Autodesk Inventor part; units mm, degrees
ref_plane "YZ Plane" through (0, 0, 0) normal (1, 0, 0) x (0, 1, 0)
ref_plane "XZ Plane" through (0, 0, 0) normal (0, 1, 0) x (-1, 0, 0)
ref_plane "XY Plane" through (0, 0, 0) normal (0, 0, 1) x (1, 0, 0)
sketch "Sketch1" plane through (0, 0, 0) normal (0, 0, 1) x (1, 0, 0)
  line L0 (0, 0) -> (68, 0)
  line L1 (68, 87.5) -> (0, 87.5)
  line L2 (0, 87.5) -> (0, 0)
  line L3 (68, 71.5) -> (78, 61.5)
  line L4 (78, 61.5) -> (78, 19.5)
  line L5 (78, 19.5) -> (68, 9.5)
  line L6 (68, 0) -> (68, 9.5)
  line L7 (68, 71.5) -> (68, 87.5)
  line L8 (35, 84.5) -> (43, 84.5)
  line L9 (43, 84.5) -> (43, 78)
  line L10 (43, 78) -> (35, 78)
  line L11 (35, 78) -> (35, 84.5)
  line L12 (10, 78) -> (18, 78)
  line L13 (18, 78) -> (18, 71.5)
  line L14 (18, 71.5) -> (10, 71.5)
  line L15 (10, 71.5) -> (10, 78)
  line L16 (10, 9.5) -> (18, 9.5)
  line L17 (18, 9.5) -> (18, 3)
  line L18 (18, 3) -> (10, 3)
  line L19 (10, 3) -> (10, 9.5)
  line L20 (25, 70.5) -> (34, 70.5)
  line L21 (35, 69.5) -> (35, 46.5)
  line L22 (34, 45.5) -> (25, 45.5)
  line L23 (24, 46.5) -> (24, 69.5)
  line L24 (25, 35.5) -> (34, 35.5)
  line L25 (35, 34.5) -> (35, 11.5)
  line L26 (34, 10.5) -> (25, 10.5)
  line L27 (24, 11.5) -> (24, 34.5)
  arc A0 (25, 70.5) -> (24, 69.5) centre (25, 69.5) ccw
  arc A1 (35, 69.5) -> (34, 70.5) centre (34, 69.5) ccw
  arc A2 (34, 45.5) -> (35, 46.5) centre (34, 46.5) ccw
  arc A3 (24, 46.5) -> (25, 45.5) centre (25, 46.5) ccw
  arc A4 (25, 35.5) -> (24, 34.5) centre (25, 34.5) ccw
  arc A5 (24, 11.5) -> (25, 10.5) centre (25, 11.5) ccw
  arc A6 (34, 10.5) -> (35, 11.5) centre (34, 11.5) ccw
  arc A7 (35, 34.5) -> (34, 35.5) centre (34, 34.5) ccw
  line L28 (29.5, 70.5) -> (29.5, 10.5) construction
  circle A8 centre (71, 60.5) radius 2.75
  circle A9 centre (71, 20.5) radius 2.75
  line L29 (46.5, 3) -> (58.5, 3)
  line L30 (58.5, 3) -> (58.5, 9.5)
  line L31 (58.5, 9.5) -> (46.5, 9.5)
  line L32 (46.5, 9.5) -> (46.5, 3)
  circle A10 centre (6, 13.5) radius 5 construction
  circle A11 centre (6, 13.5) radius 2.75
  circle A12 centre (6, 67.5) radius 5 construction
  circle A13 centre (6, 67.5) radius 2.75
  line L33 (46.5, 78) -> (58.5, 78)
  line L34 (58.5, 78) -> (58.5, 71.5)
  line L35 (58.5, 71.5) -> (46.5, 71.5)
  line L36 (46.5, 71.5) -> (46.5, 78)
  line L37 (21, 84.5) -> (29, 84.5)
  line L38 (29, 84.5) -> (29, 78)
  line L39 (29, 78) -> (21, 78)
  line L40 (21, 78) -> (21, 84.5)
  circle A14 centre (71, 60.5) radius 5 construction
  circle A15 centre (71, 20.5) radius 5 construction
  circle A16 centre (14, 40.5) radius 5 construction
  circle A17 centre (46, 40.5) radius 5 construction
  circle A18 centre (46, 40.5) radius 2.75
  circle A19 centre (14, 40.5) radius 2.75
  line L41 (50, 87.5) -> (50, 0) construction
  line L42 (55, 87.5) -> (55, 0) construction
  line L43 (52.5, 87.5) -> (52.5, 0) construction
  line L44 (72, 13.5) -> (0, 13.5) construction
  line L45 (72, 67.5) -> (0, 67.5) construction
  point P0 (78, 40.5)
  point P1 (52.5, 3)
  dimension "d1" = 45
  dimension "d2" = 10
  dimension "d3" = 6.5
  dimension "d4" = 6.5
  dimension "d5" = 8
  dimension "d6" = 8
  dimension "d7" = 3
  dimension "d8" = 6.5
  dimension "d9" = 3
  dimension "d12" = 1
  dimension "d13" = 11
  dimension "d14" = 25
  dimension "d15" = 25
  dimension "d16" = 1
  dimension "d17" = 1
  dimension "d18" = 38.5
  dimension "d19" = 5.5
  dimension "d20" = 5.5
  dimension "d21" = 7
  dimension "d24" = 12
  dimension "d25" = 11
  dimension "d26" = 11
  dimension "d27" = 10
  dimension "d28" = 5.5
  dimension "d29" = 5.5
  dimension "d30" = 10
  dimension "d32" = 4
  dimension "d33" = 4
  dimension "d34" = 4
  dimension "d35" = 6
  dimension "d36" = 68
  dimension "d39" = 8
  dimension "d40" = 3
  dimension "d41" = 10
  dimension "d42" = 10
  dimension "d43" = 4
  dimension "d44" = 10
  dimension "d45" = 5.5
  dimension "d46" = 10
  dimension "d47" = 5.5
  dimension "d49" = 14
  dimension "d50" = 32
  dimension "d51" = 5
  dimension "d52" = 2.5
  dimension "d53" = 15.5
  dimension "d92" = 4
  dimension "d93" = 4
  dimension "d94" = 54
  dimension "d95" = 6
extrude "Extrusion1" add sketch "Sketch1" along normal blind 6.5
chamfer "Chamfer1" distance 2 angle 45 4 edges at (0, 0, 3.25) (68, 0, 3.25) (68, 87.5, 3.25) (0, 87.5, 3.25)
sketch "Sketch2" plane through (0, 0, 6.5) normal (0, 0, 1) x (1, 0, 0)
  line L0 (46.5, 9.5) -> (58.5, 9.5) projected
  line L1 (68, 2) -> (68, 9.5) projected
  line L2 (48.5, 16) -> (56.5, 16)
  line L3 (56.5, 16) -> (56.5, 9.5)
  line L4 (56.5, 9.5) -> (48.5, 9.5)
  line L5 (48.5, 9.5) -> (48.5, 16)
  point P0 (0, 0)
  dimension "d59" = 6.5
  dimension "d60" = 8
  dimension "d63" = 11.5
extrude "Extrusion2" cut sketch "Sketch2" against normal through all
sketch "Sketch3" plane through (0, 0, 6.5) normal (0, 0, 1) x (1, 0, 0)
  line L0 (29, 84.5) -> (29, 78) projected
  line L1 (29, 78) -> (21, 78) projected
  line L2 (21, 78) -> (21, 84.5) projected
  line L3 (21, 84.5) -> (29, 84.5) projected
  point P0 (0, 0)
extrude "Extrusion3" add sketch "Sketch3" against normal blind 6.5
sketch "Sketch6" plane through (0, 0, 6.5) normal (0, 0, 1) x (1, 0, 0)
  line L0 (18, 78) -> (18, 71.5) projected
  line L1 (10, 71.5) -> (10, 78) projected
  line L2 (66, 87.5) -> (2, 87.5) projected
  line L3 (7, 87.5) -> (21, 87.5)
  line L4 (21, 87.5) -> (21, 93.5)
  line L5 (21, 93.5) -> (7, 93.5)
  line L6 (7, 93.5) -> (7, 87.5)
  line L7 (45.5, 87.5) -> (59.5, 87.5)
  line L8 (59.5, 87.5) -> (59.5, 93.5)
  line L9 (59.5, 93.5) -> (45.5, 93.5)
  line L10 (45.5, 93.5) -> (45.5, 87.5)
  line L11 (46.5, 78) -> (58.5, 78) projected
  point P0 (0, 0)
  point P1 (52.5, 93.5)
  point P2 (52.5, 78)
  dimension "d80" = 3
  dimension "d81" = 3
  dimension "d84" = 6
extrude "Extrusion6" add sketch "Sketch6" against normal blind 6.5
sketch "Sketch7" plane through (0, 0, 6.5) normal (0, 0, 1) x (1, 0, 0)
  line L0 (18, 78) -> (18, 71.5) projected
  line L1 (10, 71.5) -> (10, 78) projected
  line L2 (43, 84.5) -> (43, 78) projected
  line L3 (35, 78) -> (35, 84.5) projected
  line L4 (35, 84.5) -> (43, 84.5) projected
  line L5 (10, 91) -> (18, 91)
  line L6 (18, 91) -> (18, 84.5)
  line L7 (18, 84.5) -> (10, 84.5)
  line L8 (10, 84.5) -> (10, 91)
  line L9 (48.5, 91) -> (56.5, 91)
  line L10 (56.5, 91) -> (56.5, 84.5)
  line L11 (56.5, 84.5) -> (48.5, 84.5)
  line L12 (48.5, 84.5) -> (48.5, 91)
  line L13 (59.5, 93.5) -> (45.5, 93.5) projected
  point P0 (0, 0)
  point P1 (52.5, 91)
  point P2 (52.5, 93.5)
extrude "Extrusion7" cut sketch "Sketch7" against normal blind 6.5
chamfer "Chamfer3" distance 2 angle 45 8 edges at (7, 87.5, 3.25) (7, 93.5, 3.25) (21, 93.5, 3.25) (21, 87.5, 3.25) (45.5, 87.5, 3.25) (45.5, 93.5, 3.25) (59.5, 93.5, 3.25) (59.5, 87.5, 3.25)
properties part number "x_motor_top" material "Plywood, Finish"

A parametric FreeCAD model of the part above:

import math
import FreeCAD as App
import Part
import Sketcher


def edges_at(feature, points):
    """Names of the edges that pass closest to the given points."""
    edges = feature.Shape.Edges
    near = lambda p: min(range(len(edges)), key=lambda i: edges[i].distToShape(Part.Vertex(*p))[0])
    return sorted({f"Edge{near(p) + 1}" for p in points})


def add_polygon(sketch, points):
    """Adds a closed chain of lines whose ends are joined by coincident constraints."""
    first, n = sketch.GeometryCount, len(points)
    for a, b in zip(points, points[1:] + points[:1]):
        sketch.addGeometry(Part.LineSegment(App.Vector(*a, 0), App.Vector(*b, 0)), False)
    for i in range(n):
        sketch.addConstraint(Sketcher.Constraint("Coincident", first + i, 2, first + (i + 1) % n, 1))

doc = App.newDocument("Part")
body = doc.addObject("PartDesign::Body", "Body")

sketch1 = body.newObject("Sketcher::SketchObject", "Sketch")
sketch1.AttachmentSupport = (doc.getObject("XY_Plane"), [""])
sketch1.MapMode = "FlatFace"
add_polygon(sketch1, [(0, 87.5), (0, 0), (68, 0), (68, 9.5), (78, 19.5), (78, 61.5), (68, 71.5), (68, 87.5)])
add_polygon(sketch1, [(10, 3), (10, 9.5), (18, 9.5), (18, 3)])
sketch1.addGeometry(Part.Circle(App.Vector(6, 13.5, 0), App.Vector(0, 0, 1), 2.8), False)
sketch1.addGeometry(Part.Circle(App.Vector(14, 40.5, 0), App.Vector(0, 0, 1), 2.8), False)
sketch1.addGeometry(Part.ArcOfCircle(Part.Circle(App.Vector(25, 34.5, 0), App.Vector(0, 0, 1), 1), math.radians(90), math.radians(180)), False)
sketch1.addGeometry(Part.LineSegment(App.Vector(25, 35.5, 0), App.Vector(34, 35.5, 0)), False)
sketch1.addGeometry(Part.ArcOfCircle(Part.Circle(App.Vector(34, 34.5, 0), App.Vector(0, 0, 1), 1), math.radians(0), math.radians(90)), False)
sketch1.addGeometry(Part.LineSegment(App.Vector(35, 34.5, 0), App.Vector(35, 11.5, 0)), False)
sketch1.addGeometry(Part.ArcOfCircle(Part.Circle(App.Vector(34, 11.5, 0), App.Vector(0, 0, 1), 1), math.radians(-90), math.radians(0)), False)
sketch1.addGeometry(Part.LineSegment(App.Vector(34, 10.5, 0), App.Vector(25, 10.5, 0)), False)
sketch1.addGeometry(Part.ArcOfCircle(Part.Circle(App.Vector(25, 11.5, 0), App.Vector(0, 0, 1), 1), math.radians(180), math.radians(270)), False)
sketch1.addGeometry(Part.LineSegment(App.Vector(24, 11.5, 0), App.Vector(24, 34.5, 0)), False)
add_polygon(sketch1, [(58.5, 3), (46.5, 3), (46.5, 9.5), (58.5, 9.5)])
sketch1.addGeometry(Part.Circle(App.Vector(71, 20.5, 0), App.Vector(0, 0, 1), 2.8), False)
sketch1.addGeometry(Part.Circle(App.Vector(46, 40.5, 0), App.Vector(0, 0, 1), 2.8), False)
sketch1.addGeometry(Part.ArcOfCircle(Part.Circle(App.Vector(25, 69.5, 0), App.Vector(0, 0, 1), 1), math.radians(90), math.radians(180)), False)
sketch1.addGeometry(Part.LineSegment(App.Vector(25, 70.5, 0), App.Vector(34, 70.5, 0)), False)
sketch1.addGeometry(Part.ArcOfCircle(Part.Circle(App.Vector(34, 69.5, 0), App.Vector(0, 0, 1), 1), math.radians(0), math.radians(90)), False)
sketch1.addGeometry(Part.LineSegment(App.Vector(35, 69.5, 0), App.Vector(35, 46.5, 0)), False)
sketch1.addGeometry(Part.ArcOfCircle(Part.Circle(App.Vector(34, 46.5, 0), App.Vector(0, 0, 1), 1), math.radians(-90), math.radians(0)), False)
sketch1.addGeometry(Part.LineSegment(App.Vector(34, 45.5, 0), App.Vector(25, 45.5, 0)), False)
sketch1.addGeometry(Part.ArcOfCircle(Part.Circle(App.Vector(25, 46.5, 0), App.Vector(0, 0, 1), 1), math.radians(180), math.radians(270)), False)
sketch1.addGeometry(Part.LineSegment(App.Vector(24, 46.5, 0), App.Vector(24, 69.5, 0)), False)
sketch1.addGeometry(Part.Circle(App.Vector(6, 67.5, 0), App.Vector(0, 0, 1), 2.8), False)
add_polygon(sketch1, [(10, 71.5), (10, 78), (18, 78), (18, 71.5)])
add_polygon(sketch1, [(21, 78), (21, 84.5), (29, 84.5), (29, 78)])
sketch1.addGeometry(Part.Circle(App.Vector(71, 60.5, 0), App.Vector(0, 0, 1), 2.8), False)
add_polygon(sketch1, [(46.5, 71.5), (46.5, 78), (58.5, 78), (58.5, 71.5)])
add_polygon(sketch1, [(35, 78), (35, 84.5), (43, 84.5), (43, 78)])
sketch1.addConstraint(Sketcher.Constraint("Tangent", 14, 1, 15, 1))
sketch1.addConstraint(Sketcher.Constraint("Tangent", 15, 2, 16, 2))
sketch1.addConstraint(Sketcher.Constraint("Tangent", 16, 1, 17, 1))
sketch1.addConstraint(Sketcher.Constraint("Tangent", 17, 2, 18, 2))
sketch1.addConstraint(Sketcher.Constraint("Tangent", 18, 1, 19, 1))
sketch1.addConstraint(Sketcher.Constraint("Tangent", 19, 2, 20, 2))
sketch1.addConstraint(Sketcher.Constraint("Tangent", 20, 1, 21, 1))
sketch1.addConstraint(Sketcher.Constraint("Tangent", 21, 2, 14, 2))
sketch1.addConstraint(Sketcher.Constraint("Tangent", 28, 1, 29, 1))
sketch1.addConstraint(Sketcher.Constraint("Tangent", 29, 2, 30, 2))
sketch1.addConstraint(Sketcher.Constraint("Tangent", 30, 1, 31, 1))
sketch1.addConstraint(Sketcher.Constraint("Tangent", 31, 2, 32, 2))
sketch1.addConstraint(Sketcher.Constraint("Tangent", 32, 1, 33, 1))
sketch1.addConstraint(Sketcher.Constraint("Tangent", 33, 2, 34, 2))
sketch1.addConstraint(Sketcher.Constraint("Tangent", 34, 1, 35, 1))
sketch1.addConstraint(Sketcher.Constraint("Tangent", 35, 2, 28, 2))
sketch1.addConstraint(Sketcher.Constraint("Vertical", 0))
sketch1.addConstraint(Sketcher.Constraint("Horizontal", 1))
sketch1.addConstraint(Sketcher.Constraint("Vertical", 2))
sketch1.addConstraint(Sketcher.Constraint("Vertical", 4))
sketch1.addConstraint(Sketcher.Constraint("Vertical", 6))
sketch1.addConstraint(Sketcher.Constraint("Horizontal", 7))
sketch1.addConstraint(Sketcher.Constraint("Vertical", 8))
sketch1.addConstraint(Sketcher.Constraint("Horizontal", 9))
sketch1.addConstraint(Sketcher.Constraint("Vertical", 10))
sketch1.addConstraint(Sketcher.Constraint("Horizontal", 11))
sketch1.addConstraint(Sketcher.Constraint("Horizontal", 15))
sketch1.addConstraint(Sketcher.Constraint("Vertical", 17))
sketch1.addConstraint(Sketcher.Constraint("Horizontal", 19))
sketch1.addConstraint(Sketcher.Constraint("Vertical", 21))
sketch1.addConstraint(Sketcher.Constraint("Horizontal", 22))
sketch1.addConstraint(Sketcher.Constraint("Vertical", 23))
sketch1.addConstraint(Sketcher.Constraint("Horizontal", 24))
sketch1.addConstraint(Sketcher.Constraint("Vertical", 25))
sketch1.addConstraint(Sketcher.Constraint("Horizontal", 29))
sketch1.addConstraint(Sketcher.Constraint("Vertical", 31))
sketch1.addConstraint(Sketcher.Constraint("Horizontal", 33))
sketch1.addConstraint(Sketcher.Constraint("Vertical", 35))
sketch1.addConstraint(Sketcher.Constraint("Vertical", 37))
sketch1.addConstraint(Sketcher.Constraint("Horizontal", 38))
sketch1.addConstraint(Sketcher.Constraint("Vertical", 39))
sketch1.addConstraint(Sketcher.Constraint("Horizontal", 40))
sketch1.addConstraint(Sketcher.Constraint("Vertical", 41))
sketch1.addConstraint(Sketcher.Constraint("Horizontal", 42))
sketch1.addConstraint(Sketcher.Constraint("Vertical", 43))
sketch1.addConstraint(Sketcher.Constraint("Horizontal", 44))
sketch1.addConstraint(Sketcher.Constraint("Vertical", 46))
sketch1.addConstraint(Sketcher.Constraint("Horizontal", 47))
sketch1.addConstraint(Sketcher.Constraint("Vertical", 48))
sketch1.addConstraint(Sketcher.Constraint("Horizontal", 49))
sketch1.addConstraint(Sketcher.Constraint("Vertical", 50))
sketch1.addConstraint(Sketcher.Constraint("Horizontal", 51))
sketch1.addConstraint(Sketcher.Constraint("Vertical", 52))
sketch1.addConstraint(Sketcher.Constraint("Horizontal", 53))
sketch1.addConstraint(Sketcher.Constraint("Coincident", 0, 2, -1, 1))
sketch1.addConstraint(Sketcher.Constraint("Equal", 12, 13))
sketch1.addConstraint(Sketcher.Constraint("Equal", 14, 16))
sketch1.addConstraint(Sketcher.Constraint("Equal", 16, 18))
sketch1.addConstraint(Sketcher.Constraint("Equal", 18, 20))
sketch1.addConstraint(Sketcher.Constraint("Equal", 13, 26))
sketch1.addConstraint(Sketcher.Constraint("Equal", 26, 27))
sketch1.addConstraint(Sketcher.Constraint("Equal", 20, 28))
sketch1.addConstraint(Sketcher.Constraint("Equal", 28, 30))
sketch1.addConstraint(Sketcher.Constraint("Equal", 30, 32))
sketch1.addConstraint(Sketcher.Constraint("Equal", 32, 34))
sketch1.addConstraint(Sketcher.Constraint("Equal", 27, 36))
sketch1.addConstraint(Sketcher.Constraint("Equal", 36, 45))
sketch1.addConstraint(Sketcher.Constraint("Perpendicular", 3, 5))
sketch1.addConstraint(Sketcher.Constraint("Horizontal", 13, 3, 27, 3))
sketch1.addConstraint(Sketcher.Constraint("Horizontal", 2, 2, 8, 2))
sketch1.addConstraint(Sketcher.Constraint("Horizontal", 11, 2, 22, 2))
sketch1.addConstraint(Sketcher.Constraint("Horizontal", 9, 2, 23, 2))
sketch1.addConstraint(Sketcher.Constraint("Horizontal", 5, 2, 39, 2))
sketch1.addConstraint(Sketcher.Constraint("Horizontal", 38, 2, 43, 2))
sketch1.addConstraint(Sketcher.Constraint("Horizontal", 44, 2, 46, 2))
sketch1.addConstraint(Sketcher.Constraint("Horizontal", 40, 2, 48, 2))
sketch1.addConstraint(Sketcher.Constraint("Horizontal", 42, 2, 50, 2))
sketch1.addConstraint(Sketcher.Constraint("Horizontal", 47, 2, 52, 2))
sketch1.addConstraint(Sketcher.Constraint("Vertical", 20, 3, 28, 3))
sketch1.addConstraint(Sketcher.Constraint("Vertical", 18, 3, 30, 3))
sketch1.addConstraint(Sketcher.Constraint("Vertical", 12, 3, 36, 3))
sketch1.addConstraint(Sketcher.Constraint("Vertical", 26, 3, 45, 3))
sketch1.addConstraint(Sketcher.Constraint("Vertical", 2, 2, 5, 2))
sketch1.addConstraint(Sketcher.Constraint("Vertical", 11, 2, 37, 2))
sketch1.addConstraint(Sketcher.Constraint("Vertical", 10, 2, 38, 2))
sketch1.addConstraint(Sketcher.Constraint("Vertical", 23, 2, 46, 2))
sketch1.addConstraint(Sketcher.Constraint("Vertical", 25, 2, 47, 2))
sketch1.addConstraint(Sketcher.Constraint("Vertical", 31, 2, 50, 2))
sketch1.addConstraint(Sketcher.Constraint("Equal", 40, 42))
sketch1.addConstraint(Sketcher.Constraint("Equal", 44, 51))
sketch1.addConstraint(Sketcher.Constraint("Equal", 21, 31))
sketch1.addConstraint(Sketcher.Constraint("Equal", 25, 37))
sketch1.addConstraint(Sketcher.Constraint("Equal", 39, 41))
sketch1.addConstraint(Sketcher.Constraint("Equal", 3, 5))
sketch1.addConstraint(Sketcher.Constraint("Radius", 14, 1.0))
sketch1.addConstraint(Sketcher.Constraint("Diameter", 12, 5.5))
sketch1.addConstraint(Sketcher.Constraint("DistanceX", 1, 1, 1, 2, 68.0))
sketch1.addConstraint(Sketcher.Constraint("DistanceX", 9, 1, 9, 2, 8.0))
sketch1.addConstraint(Sketcher.Constraint("DistanceX", 22, 2, 22, 1, 12.0))
sketch1.addConstraint(Sketcher.Constraint("DistanceY", 8, 1, 8, 2, 6.5))
sketch1.addConstraint(Sketcher.Constraint("DistanceX", -1, 1, 12, 3, 6.0))
sketch1.addConstraint(Sketcher.Constraint("DistanceX", -1, 1, 13, 3, 14.0))
sketch1.addConstraint(Sketcher.Constraint("DistanceX", -1, 1, 14, 3, 25.0))
sketch1.addConstraint(Sketcher.Constraint("DistanceX", -1, 1, 8, 2, 10.0))
sketch1.addConstraint(Sketcher.Constraint("DistanceY", -1, 1, 10, 2, 3.0))
sketch1.addConstraint(Sketcher.Constraint("DistanceX", 15, 1, 15, 2, 9.0))
sketch1.addConstraint(Sketcher.Constraint("DistanceY", 4, 1, 4, 2, 42.0))
sketch1.addConstraint(Sketcher.Constraint("DistanceY", 6, 1, 6, 2, 16.0))
sketch1.addConstraint(Sketcher.Constraint("DistanceY", 17, 2, 17, 1, 23.0))
sketch1.addConstraint(Sketcher.Constraint("DistanceY", 0, 2, 0, 1, 87.5))
sketch1.addConstraint(Sketcher.Constraint("DistanceX", -1, 1, 26, 3, 71.0))
sketch1.addConstraint(Sketcher.Constraint("DistanceX", -1, 1, 27, 3, 46.0))
sketch1.addConstraint(Sketcher.Constraint("DistanceX", -1, 1, 41, 2, 21.0))
sketch1.addConstraint(Sketcher.Constraint("DistanceY", -1, 1, 12, 3, 13.5))
sketch1.addConstraint(Sketcher.Constraint("DistanceY", -1, 1, 13, 3, 40.5))
sketch1.addConstraint(Sketcher.Constraint("DistanceY", -1, 1, 14, 3, 34.5))
sketch1.addConstraint(Sketcher.Constraint("DistanceY", -1, 1, 26, 3, 20.5))
sketch1.addConstraint(Sketcher.Constraint("DistanceY", -1, 1, 28, 3, 69.5))
sketch1.addConstraint(Sketcher.Constraint("DistanceY", -1, 1, 36, 3, 67.5))
sketch1.addConstraint(Sketcher.Constraint("DistanceY", -1, 1, 45, 3, 60.5))
sketch1.addConstraint(Sketcher.Constraint("DistanceX", -1, 1, 22, 2, 46.5))
pad1 = body.newObject("PartDesign::Pad", "Pad")
pad1.Profile = sketch1
pad1.Length = 6.5
doc.recompute()

chamfer = body.newObject("PartDesign::Chamfer", "Chamfer")
chamfer.Base = (pad1, edges_at(pad1, [
    (0, 0, 3.25),
    (68, 0, 3.25),
    (68, 87.5, 3.25),
    (0, 87.5, 3.25),
]))
chamfer.Size = 2

sketch2 = body.newObject("Sketcher::SketchObject", "Sketch001")
sketch2.AttachmentSupport = (doc.getObject("XY_Plane"), [""])
sketch2.MapMode = "FlatFace"
sketch2.AttachmentOffset = App.Placement(App.Vector(0, 0, 6.5), App.Rotation())
add_polygon(sketch2, [(48, 16), (48, 10), (56, 10), (56, 16)])
sketch2.addConstraint(Sketcher.Constraint("Vertical", 0))
sketch2.addConstraint(Sketcher.Constraint("Horizontal", 1))
sketch2.addConstraint(Sketcher.Constraint("Vertical", 2))
sketch2.addConstraint(Sketcher.Constraint("Horizontal", 3))
sketch2.addConstraint(Sketcher.Constraint("DistanceX", 1, 1, 1, 2, 8.0))
sketch2.addConstraint(Sketcher.Constraint("DistanceY", 0, 2, 0, 1, 6.5))
sketch2.addConstraint(Sketcher.Constraint("DistanceY", -1, 1, 2, 2, 16.0))
sketch2.addConstraint(Sketcher.Constraint("DistanceX", -1, 1, 0, 2, 48.5))
pocket1 = body.newObject("PartDesign::Pocket", "Pocket")
pocket1.Profile = sketch2
pocket1.Type = "ThroughAll"

sketch3 = body.newObject("Sketcher::SketchObject", "Sketch002")
sketch3.AttachmentSupport = (doc.getObject("XY_Plane"), [""])
sketch3.MapMode = "FlatFace"
sketch3.AttachmentOffset = App.Placement(App.Vector(0, 0, 6.5), App.Rotation())
add_polygon(sketch3, [(29, 78), (29, 84), (21, 84), (21, 78)])
sketch3.addConstraint(Sketcher.Constraint("Vertical", 0))
sketch3.addConstraint(Sketcher.Constraint("Horizontal", 1))
sketch3.addConstraint(Sketcher.Constraint("Vertical", 2))
sketch3.addConstraint(Sketcher.Constraint("Horizontal", 3))
sketch3.addConstraint(Sketcher.Constraint("DistanceX", 1, 2, 1, 1, 8.0))
sketch3.addConstraint(Sketcher.Constraint("DistanceY", 0, 1, 0, 2, 6.5))
sketch3.addConstraint(Sketcher.Constraint("DistanceX", -1, 1, 0, 2, 29.0))
sketch3.addConstraint(Sketcher.Constraint("DistanceY", -1, 1, 2, 2, 78.0))
pad2 = body.newObject("PartDesign::Pad", "Pad001")
pad2.Profile = sketch3
pad2.Length = 6.5
pad2.Reversed = True

sketch4 = body.newObject("Sketcher::SketchObject", "Sketch003")
sketch4.AttachmentSupport = (doc.getObject("XY_Plane"), [""])
sketch4.MapMode = "FlatFace"
sketch4.AttachmentOffset = App.Placement(App.Vector(0, 0, 6.5), App.Rotation())
add_polygon(sketch4, [(7, 88), (21, 88), (21, 94), (7, 94)])
add_polygon(sketch4, [(46, 88), (60, 88), (60, 94), (46, 94)])
sketch4.addConstraint(Sketcher.Constraint("Horizontal", 0))
sketch4.addConstraint(Sketcher.Constraint("Vertical", 1))
sketch4.addConstraint(Sketcher.Constraint("Horizontal", 2))
sketch4.addConstraint(Sketcher.Constraint("Vertical", 3))
sketch4.addConstraint(Sketcher.Constraint("Horizontal", 4))
sketch4.addConstraint(Sketcher.Constraint("Vertical", 5))
sketch4.addConstraint(Sketcher.Constraint("Horizontal", 6))
sketch4.addConstraint(Sketcher.Constraint("Vertical", 7))
sketch4.addConstraint(Sketcher.Constraint("Horizontal", 3, 2, 4, 2))
sketch4.addConstraint(Sketcher.Constraint("Horizontal", 2, 2, 5, 2))
sketch4.addConstraint(Sketcher.Constraint("Equal", 2, 4))
sketch4.addConstraint(Sketcher.Constraint("DistanceY", 1, 1, 1, 2, 6.0))
sketch4.addConstraint(Sketcher.Constraint("DistanceX", 0, 1, 0, 2, 14.0))
sketch4.addConstraint(Sketcher.Constraint("DistanceX", -1, 1, 0, 2, 21.0))
sketch4.addConstraint(Sketcher.Constraint("DistanceY", -1, 1, 0, 2, 87.5))
sketch4.addConstraint(Sketcher.Constraint("DistanceX", -1, 1, 4, 2, 59.5))
pad3 = body.newObject("PartDesign::Pad", "Pad002")
pad3.Profile = sketch4
pad3.Length = 6.5
pad3.Reversed = True

sketch5 = body.newObject("Sketcher::SketchObject", "Sketch004")
sketch5.AttachmentSupport = (doc.getObject("XY_Plane"), [""])
sketch5.MapMode = "FlatFace"
sketch5.AttachmentOffset = App.Placement(App.Vector(0, 0, 6.5), App.Rotation())
add_polygon(sketch5, [(18, 91), (10, 91), (10, 84), (18, 84)])
add_polygon(sketch5, [(56, 91), (48, 91), (48, 84), (56, 84)])
sketch5.addConstraint(Sketcher.Constraint("Horizontal", 0))
sketch5.addConstraint(Sketcher.Constraint("Vertical", 1))
sketch5.addConstraint(Sketcher.Constraint("Horizontal", 2))
sketch5.addConstraint(Sketcher.Constraint("Vertical", 3))
sketch5.addConstraint(Sketcher.Constraint("Horizontal", 4))
sketch5.addConstraint(Sketcher.Constraint("Vertical", 5))
sketch5.addConstraint(Sketcher.Constraint("Horizontal", 6))
sketch5.addConstraint(Sketcher.Constraint("Vertical", 7))
sketch5.addConstraint(Sketcher.Constraint("Horizontal", 3, 2, 4, 2))
sketch5.addConstraint(Sketcher.Constraint("Horizontal", 2, 2, 5, 2))
sketch5.addConstraint(Sketcher.Constraint("Equal", 2, 4))
sketch5.addConstraint(Sketcher.Constraint("DistanceX", 0, 2, 0, 1, 8.0))
sketch5.addConstraint(Sketcher.Constraint("DistanceY", 1, 2, 1, 1, 6.5))
sketch5.addConstraint(Sketcher.Constraint("DistanceX", -1, 1, 0, 2, 10.0))
sketch5.addConstraint(Sketcher.Constraint("DistanceY", -1, 1, 0, 2, 91.0))
sketch5.addConstraint(Sketcher.Constraint("DistanceX", -1, 1, 4, 2, 48.5))
pocket2 = body.newObject("PartDesign::Pocket", "Pocket001")
pocket2.Profile = sketch5
pocket2.Length = 6.5
doc.recompute()

chamfer2 = body.newObject("PartDesign::Chamfer", "Chamfer001")
chamfer2.Base = (pocket2, edges_at(pocket2, [
    (7, 87.5, 3.25),
    (7, 93.5, 3.25),
    (21, 93.5, 3.25),
    (21, 87.5, 3.25),
    (45.5, 87.5, 3.25),
    (45.5, 93.5, 3.25),
    (59.5, 93.5, 3.25),
    (59.5, 87.5, 3.25),
]))
chamfer2.Size = 2

doc.recompute()
